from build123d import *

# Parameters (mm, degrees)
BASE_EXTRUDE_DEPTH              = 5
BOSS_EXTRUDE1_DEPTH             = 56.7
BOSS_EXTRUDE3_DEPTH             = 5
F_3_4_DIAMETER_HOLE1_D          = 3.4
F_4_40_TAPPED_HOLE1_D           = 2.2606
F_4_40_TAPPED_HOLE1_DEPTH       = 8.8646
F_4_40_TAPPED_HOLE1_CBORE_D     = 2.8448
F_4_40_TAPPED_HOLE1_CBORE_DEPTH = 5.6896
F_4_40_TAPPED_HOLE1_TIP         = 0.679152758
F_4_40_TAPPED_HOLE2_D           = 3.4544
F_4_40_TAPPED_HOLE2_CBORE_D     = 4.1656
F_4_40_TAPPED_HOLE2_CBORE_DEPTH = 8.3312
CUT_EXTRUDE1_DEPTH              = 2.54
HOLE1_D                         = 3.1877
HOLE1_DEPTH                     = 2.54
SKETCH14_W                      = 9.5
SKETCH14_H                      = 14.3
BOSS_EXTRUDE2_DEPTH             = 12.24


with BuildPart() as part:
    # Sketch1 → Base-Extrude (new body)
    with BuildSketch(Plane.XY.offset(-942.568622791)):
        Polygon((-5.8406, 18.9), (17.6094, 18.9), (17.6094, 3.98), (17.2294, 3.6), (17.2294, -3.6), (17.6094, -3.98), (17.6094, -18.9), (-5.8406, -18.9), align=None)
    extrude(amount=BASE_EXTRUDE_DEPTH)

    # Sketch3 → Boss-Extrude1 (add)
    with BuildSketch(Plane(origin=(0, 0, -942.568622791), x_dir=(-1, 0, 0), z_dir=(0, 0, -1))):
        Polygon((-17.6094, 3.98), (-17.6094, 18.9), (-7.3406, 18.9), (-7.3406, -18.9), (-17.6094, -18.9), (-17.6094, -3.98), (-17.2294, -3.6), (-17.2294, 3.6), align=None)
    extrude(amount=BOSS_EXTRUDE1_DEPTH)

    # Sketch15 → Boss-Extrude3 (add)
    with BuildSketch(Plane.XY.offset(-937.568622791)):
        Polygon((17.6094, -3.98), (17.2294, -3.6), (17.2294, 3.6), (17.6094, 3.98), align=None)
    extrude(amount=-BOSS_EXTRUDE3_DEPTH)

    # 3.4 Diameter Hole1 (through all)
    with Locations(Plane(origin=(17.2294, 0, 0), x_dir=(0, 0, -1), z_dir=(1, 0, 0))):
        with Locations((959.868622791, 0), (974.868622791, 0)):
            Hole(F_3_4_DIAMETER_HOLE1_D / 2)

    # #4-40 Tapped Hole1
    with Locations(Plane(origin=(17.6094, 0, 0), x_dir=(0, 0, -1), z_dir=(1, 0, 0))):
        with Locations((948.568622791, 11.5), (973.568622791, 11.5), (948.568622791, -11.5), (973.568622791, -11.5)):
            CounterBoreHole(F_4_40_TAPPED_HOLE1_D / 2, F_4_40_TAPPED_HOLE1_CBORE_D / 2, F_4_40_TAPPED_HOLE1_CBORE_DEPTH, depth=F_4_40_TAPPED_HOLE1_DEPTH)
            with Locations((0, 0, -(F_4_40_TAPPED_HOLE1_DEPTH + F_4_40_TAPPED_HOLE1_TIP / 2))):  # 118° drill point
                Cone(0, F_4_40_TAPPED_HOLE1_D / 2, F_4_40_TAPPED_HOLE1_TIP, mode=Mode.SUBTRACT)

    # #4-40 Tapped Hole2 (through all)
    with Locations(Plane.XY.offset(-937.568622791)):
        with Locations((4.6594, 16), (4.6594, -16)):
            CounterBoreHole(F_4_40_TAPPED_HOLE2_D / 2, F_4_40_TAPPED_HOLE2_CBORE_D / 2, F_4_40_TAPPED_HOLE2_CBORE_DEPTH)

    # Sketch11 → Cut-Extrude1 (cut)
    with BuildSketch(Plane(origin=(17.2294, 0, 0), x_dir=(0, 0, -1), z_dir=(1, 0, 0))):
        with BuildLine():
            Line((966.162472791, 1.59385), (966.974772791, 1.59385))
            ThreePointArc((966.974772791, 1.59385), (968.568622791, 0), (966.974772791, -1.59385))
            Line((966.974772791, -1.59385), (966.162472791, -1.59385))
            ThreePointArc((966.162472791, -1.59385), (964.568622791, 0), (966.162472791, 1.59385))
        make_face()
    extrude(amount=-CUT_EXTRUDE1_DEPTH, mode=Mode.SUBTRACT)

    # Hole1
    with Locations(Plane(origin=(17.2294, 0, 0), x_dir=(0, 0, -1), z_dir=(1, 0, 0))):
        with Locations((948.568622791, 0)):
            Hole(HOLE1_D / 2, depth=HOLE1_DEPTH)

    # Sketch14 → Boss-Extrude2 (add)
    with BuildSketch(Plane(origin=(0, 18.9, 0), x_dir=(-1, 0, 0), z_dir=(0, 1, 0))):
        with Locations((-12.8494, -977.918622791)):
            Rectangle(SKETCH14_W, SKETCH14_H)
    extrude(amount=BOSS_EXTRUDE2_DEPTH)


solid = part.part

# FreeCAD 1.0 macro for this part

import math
import FreeCAD as App
import Part
import Sketcher

V = App.Vector


def add_polygon(sketch, points):
    """Adds a closed chain of lines whose ends are joined by coincident constraints."""
    first, n = sketch.GeometryCount, len(points)
    for a, b in zip(points, points[1:] + points[:1]):
        sketch.addGeometry(Part.LineSegment(App.Vector(*a, 0), App.Vector(*b, 0)), False)
    for i in range(n):
        sketch.addConstraint(Sketcher.Constraint("Coincident", first + i, 2, first + (i + 1) % n, 1))

doc = App.newDocument("Part")
body = doc.addObject("PartDesign::Body", "Body")

# Sketch on XY plane
sketch1 = body.newObject("Sketcher::SketchObject", "Sketch")
sketch1.AttachmentSupport = (doc.getObject("XY_Plane"), [""])
sketch1.MapMode = "FlatFace"
sketch1.AttachmentOffset = App.Placement(V(0, 0, -942.568623), App.Rotation())
add_polygon(sketch1, [(17.6094, 18.9), (-5.8406, 18.9), (-5.8406, -18.9), (17.6094, -18.9), (17.6094, -3.98), (17.2294, -3.6), (17.2294, 3.6), (17.6094, 3.98)])  # lines 0-7
sketch1.addConstraint([
    Sketcher.Constraint("Horizontal", 0),
    Sketcher.Constraint("Vertical", 1),
    Sketcher.Constraint("Horizontal", 2),
    Sketcher.Constraint("Vertical", 3),
    Sketcher.Constraint("Vertical", 5),
    Sketcher.Constraint("Vertical", 7),
    Sketcher.Constraint("Symmetric", 3, 2, 6, 2, -1),
    Sketcher.Constraint("Perpendicular", 4, 6),
    Sketcher.Constraint("Equal", 3, 7),
    Sketcher.Constraint("Equal", 4, 6),
    Sketcher.Constraint("DistanceY", 1, 2, 1, 1, 37.8),
    Sketcher.Constraint("DistanceY", 5, 1, 5, 2, 7.2),
    Sketcher.Constraint("DistanceX", 0, 2, 0, 1, 23.45),
    Sketcher.Constraint("DistanceY", 3, 1, 3, 2, 14.92),
    Sketcher.Constraint("DistanceX", 0, 2, -1, 1, 5.8406),
])
pad1 = body.newObject("PartDesign::Pad", "Pad")
pad1.Profile = sketch1
pad1.Length = 5

# Sketch on XY plane
sketch2 = body.newObject("Sketcher::SketchObject", "Sketch001")
sketch2.AttachmentSupport = (doc.getObject("XY_Plane"), [""])
sketch2.MapMode = "FlatFace"
sketch2.AttachmentOffset = App.Placement(V(0, 0, -942.568623), App.Rotation())
add_polygon(sketch2, [(17.6094, 18.9), (17.6094, 3.98), (17.2294, 3.6), (17.2294, -3.6), (17.6094, -3.98), (17.6094, -18.9), (7.3406, -18.9), (7.3406, 18.9)])  # lines 0-7
sketch2.addConstraint([
    Sketcher.Constraint("Vertical", 0),
    Sketcher.Constraint("Vertical", 2),
    Sketcher.Constraint("Vertical", 4),
    Sketcher.Constraint("Horizontal", 5),
    Sketcher.Constraint("Vertical", 6),
    Sketcher.Constraint("Horizontal", 7),
    Sketcher.Constraint("Symmetric", 0, 2, 3, 2, -1),
    Sketcher.Constraint("Perpendicular", 1, 3),
    Sketcher.Constraint("Equal", 0, 4),
    Sketcher.Constraint("Equal", 1, 3),
    Sketcher.Constraint("DistanceY", 2, 2, 2, 1, 7.2),
    Sketcher.Constraint("DistanceY", 6, 1, 6, 2, 37.8),
    Sketcher.Constraint("DistanceY", 0, 2, 0, 1, 14.92),
    Sketcher.Constraint("DistanceX", 5, 2, 5, 1, 10.2688),
    Sketcher.Constraint("DistanceX", -1, 1, 0, 2, 17.6094),
])
pad2 = body.newObject("PartDesign::Pad", "Pad001")
pad2.Profile = sketch2
pad2.Length = 56.7
pad2.Reversed = True

# Sketch on XY plane
sketch3 = body.newObject("Sketcher::SketchObject", "Sketch002")
sketch3.AttachmentSupport = (doc.getObject("XY_Plane"), [""])
sketch3.MapMode = "FlatFace"
sketch3.AttachmentOffset = App.Placement(V(0, 0, -937.568623), App.Rotation())
add_polygon(sketch3, [(17.2294, -3.6), (17.6094, -3.98), (17.6094, 3.98), (17.2294, 3.6)])  # lines 0-3
sketch3.addConstraint([
    Sketcher.Constraint("Vertical", 1),
    Sketcher.Constraint("Vertical", 3),
    Sketcher.Constraint("Perpendicular", 0, 2),
    Sketcher.Constraint("Equal", 0, 2),
    Sketcher.Constraint("DistanceY", 3, 2, 3, 1, 7.2),
    Sketcher.Constraint("DistanceY", 1, 1, 1, 2, 7.96),
    Sketcher.Constraint("DistanceY", -1, 1, 2, 2, 3.6),
    Sketcher.Constraint("DistanceX", -1, 1, 0, 2, 17.6094),
])
pad3 = body.newObject("PartDesign::Pad", "Pad002")
pad3.Profile = sketch3
pad3.Length = 5
pad3.Reversed = True

# Sketch on YZ plane
sketch4 = body.newObject("Sketcher::SketchObject", "Sketch003")
sketch4.AttachmentSupport = (doc.getObject("YZ_Plane"), [""])
sketch4.MapMode = "FlatFace"
sketch4.AttachmentOffset = App.Placement(V(0, 0, 17.2294), App.Rotation())
sketch4.addGeometry([
    Part.Circle(V(0, -959.868623, 0), V(0, 0, 1), 1.7),
    Part.Circle(V(0, -974.868623, 0), V(0, 0, 1), 1.7),
], False)
sketch4.addConstraint([
    Sketcher.Constraint("Equal", 0, 1),
    Sketcher.Constraint("PointOnObject", 0, 3, -2),
    Sketcher.Constraint("PointOnObject", 1, 3, -2),
    Sketcher.Constraint("Diameter", 0, 3.4),
    Sketcher.Constraint("DistanceY", 1, 3, 0, 3, 15.0),
    Sketcher.Constraint("DistanceY", 0, 3, -1, 1, 959.868623),
])
doc.recompute()
hole = body.newObject("PartDesign::Hole", "Hole")
hole.Profile = sketch4
hole.ThreadType = "None"
hole.Diameter = 3.4
hole.DepthType = "ThroughAll"

# Sketch on YZ plane
sketch5 = body.newObject("Sketcher::SketchObject", "Sketch004")
sketch5.AttachmentSupport = (doc.getObject("YZ_Plane"), [""])
sketch5.MapMode = "FlatFace"
sketch5.AttachmentOffset = App.Placement(V(0, 0, 17.6094), App.Rotation())
sketch5.addGeometry([
    Part.Circle(V(11.5, -948.568623, 0), V(0, 0, 1), 1.1303),
    Part.Circle(V(11.5, -973.568623, 0), V(0, 0, 1), 1.1303),
    Part.Circle(V(-11.5, -948.568623, 0), V(0, 0, 1), 1.1303),
    Part.Circle(V(-11.5, -973.568623, 0), V(0, 0, 1), 1.1303),
], False)
sketch5.addConstraint([
    Sketcher.Constraint("Equal", 0, 1),
    Sketcher.Constraint("Equal", 1, 2),
    Sketcher.Constraint("Equal", 2, 3),
    Sketcher.Constraint("Symmetric", 0, 3, 2, 3, -2),
    Sketcher.Constraint("Symmetric", 1, 3, 3, 3, -2),
    Sketcher.Constraint("Vertical", 0, 3, 1, 3),
    Sketcher.Constraint("DistanceY", 1, 3, 0, 3, 25.0),
    Sketcher.Constraint("DistanceX", 2, 3, 0, 3, 23.0),
    Sketcher.Constraint("Diameter", 0, 2.2606),
    Sketcher.Constraint("DistanceY", 0, 3, -1, 1, 948.568623),
])
doc.recompute()
hole2 = body.newObject("PartDesign::Hole", "Hole001")
hole2.Profile = sketch5
hole2.ThreadType = "None"
hole2.Diameter = 2.2606
hole2.DepthType = "Dimension"
hole2.Depth = 8.8646
hole2.DrillPoint = "Angled"
hole2.DrillPointAngle = 118
hole2.HoleCutType = "Counterbore"
hole2.HoleCutDiameter = 2.8448
hole2.HoleCutDepth = 5.6896

# Sketch on XY plane
sketch6 = body.newObject("Sketcher::SketchObject", "Sketch005")
sketch6.AttachmentSupport = (doc.getObject("XY_Plane"), [""])
sketch6.MapMode = "FlatFace"
sketch6.AttachmentOffset = App.Placement(V(0, 0, -937.568623), App.Rotation())
sketch6.addGeometry([
    Part.Circle(V(4.6594, 16, 0), V(0, 0, 1), 1.7272),
    Part.Circle(V(4.6594, -16, 0), V(0, 0, 1), 1.7272),
], False)
sketch6.addConstraint([
    Sketcher.Constraint("Equal", 0, 1),
    Sketcher.Constraint("Symmetric", 0, 3, 1, 3, -1),
    Sketcher.Constraint("DistanceY", -1, 1, 0, 3, 16.0),
    Sketcher.Constraint("Diameter", 0, 3.4544),
    Sketcher.Constraint("DistanceX", -1, 1, 0, 3, 4.6594),
])
doc.recompute()
hole3 = body.newObject("PartDesign::Hole", "Hole002")
hole3.Profile = sketch6
hole3.ThreadType = "None"
hole3.Diameter = 3.4544
hole3.DepthType = "ThroughAll"
hole3.HoleCutType = "Counterbore"
hole3.HoleCutDiameter = 4.1656
hole3.HoleCutDepth = 8.3312

# Sketch on YZ plane
sketch7 = body.newObject("Sketcher::SketchObject", "Sketch006")
sketch7.AttachmentSupport = (doc.getObject("YZ_Plane"), [""])
sketch7.MapMode = "FlatFace"
sketch7.AttachmentOffset = App.Placement(V(0, 0, 17.2294), App.Rotation())
sketch7.addGeometry([
    Part.LineSegment(V(1.59385, -966.974773, 0), V(1.59385, -966.162473, 0)),
    Part.ArcOfCircle(Part.Circle(V(0, -966.162473, 0), V(0, 0, 1), 1.59385), math.radians(0), math.radians(180)),
    Part.LineSegment(V(-1.59385, -966.162473, 0), V(-1.59385, -966.974773, 0)),
    Part.ArcOfCircle(Part.Circle(V(0, -966.974773, 0), V(0, 0, 1), 1.59385), math.radians(180), math.radians(360)),
], False)
sketch7.addConstraint([
    Sketcher.Constraint("Tangent", 0, 2, 1, 1),
    Sketcher.Constraint("Tangent", 1, 2, 2, 1),
    Sketcher.Constraint("Tangent", 2, 2, 3, 1),
    Sketcher.Constraint("Tangent", 3, 2, 0, 1),
    Sketcher.Constraint("Vertical", 0),
    Sketcher.Constraint("Vertical", 2),
    Sketcher.Constraint("PointOnObject", 1, 3, -2),
    Sketcher.Constraint("Radius", 1, 1.59385),
    Sketcher.Constraint("DistanceY", 0, 1, 0, 2, 0.8123),
    Sketcher.Constraint("DistanceY", 1, 3, -1, 1, 966.162473),
])
pocket1 = body.newObject("PartDesign::Pocket", "Pocket")
pocket1.Profile = sketch7
pocket1.Length = 2.54

# Sketch on YZ plane
sketch8 = body.newObject("Sketcher::SketchObject", "Sketch007")
sketch8.AttachmentSupport = (doc.getObject("YZ_Plane"), [""])
sketch8.MapMode = "FlatFace"
sketch8.AttachmentOffset = App.Placement(V(0, 0, 17.2294), App.Rotation())
sketch8.addGeometry(Part.Circle(V(0, -948.568623, 0), V(0, 0, 1), 1.59385), False)
sketch8.addConstraint([
    Sketcher.Constraint("PointOnObject", 0, 3, -2),
    Sketcher.Constraint("Diameter", 0, 3.1877),
    Sketcher.Constraint("DistanceY", 0, 3, -1, 1, 948.568623),
])
doc.recompute()
hole4 = body.newObject("PartDesign::Hole", "Hole003")
hole4.Profile = sketch8
hole4.ThreadType = "None"
hole4.Diameter = 3.1877
hole4.DepthType = "Dimension"
hole4.Depth = 2.54
hole4.DrillPoint = "Flat"

# Sketch on XZ plane
sketch9 = body.newObject("Sketcher::SketchObject", "Sketch008")
sketch9.AttachmentSupport = (doc.getObject("XZ_Plane"), [""])
sketch9.MapMode = "FlatFace"
sketch9.AttachmentOffset = App.Placement(V(0, 0, -18.9), App.Rotation())
add_polygon(sketch9, [(17.5994, -970.768623), (17.5994, -985.068623), (8.0994, -985.068623), (8.0994, -970.768623)])  # lines 0-3
sketch9.addConstraint([
    Sketcher.Constraint("Vertical", 0),
    Sketcher.Constraint("Horizontal", 1),
    Sketcher.Constraint("Vertical", 2),
    Sketcher.Constraint("Horizontal", 3),
    Sketcher.Constraint("DistanceX", 1, 2, 1, 1, 9.5),
    Sketcher.Constraint("DistanceY", 0, 2, 0, 1, 14.3),
    Sketcher.Constraint("DistanceX", -1, 1, 0, 2, 17.5994),
    Sketcher.Constraint("DistanceY", 0, 2, -1, 1, 985.068623),
])
pad4 = body.newObject("PartDesign::Pad", "Pad003")
pad4.Profile = sketch9
pad4.Length = 12.24
pad4.Reversed = True

doc.recompute()
